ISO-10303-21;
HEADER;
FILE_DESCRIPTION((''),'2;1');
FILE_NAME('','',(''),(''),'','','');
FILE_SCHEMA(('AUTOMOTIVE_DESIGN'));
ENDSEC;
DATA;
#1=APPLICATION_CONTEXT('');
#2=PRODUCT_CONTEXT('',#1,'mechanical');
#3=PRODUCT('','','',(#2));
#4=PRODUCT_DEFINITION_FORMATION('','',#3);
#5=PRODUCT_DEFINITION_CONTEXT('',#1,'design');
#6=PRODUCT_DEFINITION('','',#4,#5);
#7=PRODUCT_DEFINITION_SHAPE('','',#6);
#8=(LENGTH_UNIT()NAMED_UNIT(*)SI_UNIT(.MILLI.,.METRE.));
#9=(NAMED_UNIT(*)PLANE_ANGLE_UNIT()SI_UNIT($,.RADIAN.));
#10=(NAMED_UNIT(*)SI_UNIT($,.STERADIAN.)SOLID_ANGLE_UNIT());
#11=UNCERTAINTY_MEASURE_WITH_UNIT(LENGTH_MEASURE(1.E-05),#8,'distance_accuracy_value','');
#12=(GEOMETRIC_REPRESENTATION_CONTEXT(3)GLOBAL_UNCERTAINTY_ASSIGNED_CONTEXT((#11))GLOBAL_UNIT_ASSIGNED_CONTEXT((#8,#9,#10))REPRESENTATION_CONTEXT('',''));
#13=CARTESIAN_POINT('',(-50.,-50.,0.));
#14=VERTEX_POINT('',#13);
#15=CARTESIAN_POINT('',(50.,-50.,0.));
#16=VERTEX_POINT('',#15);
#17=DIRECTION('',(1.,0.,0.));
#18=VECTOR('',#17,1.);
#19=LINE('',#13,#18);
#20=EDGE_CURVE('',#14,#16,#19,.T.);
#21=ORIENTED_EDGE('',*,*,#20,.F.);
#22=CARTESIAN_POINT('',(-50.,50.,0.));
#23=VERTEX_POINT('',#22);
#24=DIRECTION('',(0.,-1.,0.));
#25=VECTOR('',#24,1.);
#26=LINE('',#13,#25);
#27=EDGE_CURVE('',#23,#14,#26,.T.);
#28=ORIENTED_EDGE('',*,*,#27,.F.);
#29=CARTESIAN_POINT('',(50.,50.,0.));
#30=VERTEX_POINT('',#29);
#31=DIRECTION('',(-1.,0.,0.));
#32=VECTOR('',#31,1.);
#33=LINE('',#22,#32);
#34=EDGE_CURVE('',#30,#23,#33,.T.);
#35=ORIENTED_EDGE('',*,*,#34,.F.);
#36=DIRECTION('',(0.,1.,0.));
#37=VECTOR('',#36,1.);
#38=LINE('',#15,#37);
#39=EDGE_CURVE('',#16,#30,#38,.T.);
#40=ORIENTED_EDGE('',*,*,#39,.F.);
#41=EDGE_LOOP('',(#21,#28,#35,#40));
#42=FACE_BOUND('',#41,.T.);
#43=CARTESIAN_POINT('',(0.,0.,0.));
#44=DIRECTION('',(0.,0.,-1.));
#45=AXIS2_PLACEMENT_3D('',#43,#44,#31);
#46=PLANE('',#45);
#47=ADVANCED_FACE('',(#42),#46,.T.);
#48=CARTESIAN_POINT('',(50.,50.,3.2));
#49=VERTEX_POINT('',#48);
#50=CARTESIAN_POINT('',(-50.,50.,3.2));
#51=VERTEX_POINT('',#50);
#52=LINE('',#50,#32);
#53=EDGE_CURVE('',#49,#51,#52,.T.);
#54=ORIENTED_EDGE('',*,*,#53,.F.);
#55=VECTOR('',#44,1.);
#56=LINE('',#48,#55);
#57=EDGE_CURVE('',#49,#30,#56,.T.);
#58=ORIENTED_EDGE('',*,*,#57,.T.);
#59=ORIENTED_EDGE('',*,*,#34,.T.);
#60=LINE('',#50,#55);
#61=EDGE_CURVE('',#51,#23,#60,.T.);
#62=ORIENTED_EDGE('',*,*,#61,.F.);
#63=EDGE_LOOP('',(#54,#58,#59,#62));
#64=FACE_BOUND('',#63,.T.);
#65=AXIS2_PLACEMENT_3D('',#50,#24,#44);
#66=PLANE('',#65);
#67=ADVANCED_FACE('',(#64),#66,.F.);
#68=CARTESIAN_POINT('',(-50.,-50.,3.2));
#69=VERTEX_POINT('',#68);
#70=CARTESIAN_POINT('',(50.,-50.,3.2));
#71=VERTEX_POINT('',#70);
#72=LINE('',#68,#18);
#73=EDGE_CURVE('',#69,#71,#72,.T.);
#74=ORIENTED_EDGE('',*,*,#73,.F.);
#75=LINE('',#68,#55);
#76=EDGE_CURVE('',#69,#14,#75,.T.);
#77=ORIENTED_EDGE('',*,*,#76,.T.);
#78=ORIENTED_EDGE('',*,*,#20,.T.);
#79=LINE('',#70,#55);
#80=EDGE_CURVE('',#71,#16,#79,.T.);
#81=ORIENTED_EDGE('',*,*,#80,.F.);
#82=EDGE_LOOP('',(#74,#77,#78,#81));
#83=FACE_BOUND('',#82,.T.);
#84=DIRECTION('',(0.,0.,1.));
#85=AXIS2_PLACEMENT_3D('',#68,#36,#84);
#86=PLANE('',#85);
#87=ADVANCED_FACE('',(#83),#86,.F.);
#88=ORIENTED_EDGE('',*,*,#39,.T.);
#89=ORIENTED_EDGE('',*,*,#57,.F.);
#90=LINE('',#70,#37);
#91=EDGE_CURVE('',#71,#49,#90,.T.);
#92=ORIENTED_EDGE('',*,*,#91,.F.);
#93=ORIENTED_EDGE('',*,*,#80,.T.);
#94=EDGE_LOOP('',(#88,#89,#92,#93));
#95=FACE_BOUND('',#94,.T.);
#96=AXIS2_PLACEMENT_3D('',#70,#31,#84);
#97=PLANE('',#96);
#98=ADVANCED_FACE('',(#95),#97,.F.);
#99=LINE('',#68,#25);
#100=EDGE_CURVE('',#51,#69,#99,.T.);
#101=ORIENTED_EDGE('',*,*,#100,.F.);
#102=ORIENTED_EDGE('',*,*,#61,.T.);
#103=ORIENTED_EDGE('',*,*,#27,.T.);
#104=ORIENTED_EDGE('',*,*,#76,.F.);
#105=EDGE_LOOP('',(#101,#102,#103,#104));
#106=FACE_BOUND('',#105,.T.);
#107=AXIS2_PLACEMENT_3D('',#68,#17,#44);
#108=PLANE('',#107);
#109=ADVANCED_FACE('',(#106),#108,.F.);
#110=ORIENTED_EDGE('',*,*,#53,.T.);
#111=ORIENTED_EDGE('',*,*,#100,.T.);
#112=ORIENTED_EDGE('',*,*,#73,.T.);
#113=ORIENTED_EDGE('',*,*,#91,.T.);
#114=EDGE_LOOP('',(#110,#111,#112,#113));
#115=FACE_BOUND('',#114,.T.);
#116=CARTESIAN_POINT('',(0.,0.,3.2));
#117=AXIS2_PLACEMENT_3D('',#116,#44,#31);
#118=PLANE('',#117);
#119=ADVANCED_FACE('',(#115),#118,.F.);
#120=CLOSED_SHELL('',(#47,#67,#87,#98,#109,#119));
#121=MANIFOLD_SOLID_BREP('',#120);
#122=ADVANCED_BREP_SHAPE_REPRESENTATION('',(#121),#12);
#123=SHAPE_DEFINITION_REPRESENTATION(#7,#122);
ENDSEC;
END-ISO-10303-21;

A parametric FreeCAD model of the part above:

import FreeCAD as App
import Part
import Sketcher
from FreeCAD import Vector
Q = App.Units.Quantity


def add_polygon(sketch, points):
    """Adds a closed chain of lines whose ends are joined by coincident constraints."""
    first, n = sketch.GeometryCount, len(points)
    for a, b in zip(points, points[1:] + points[:1]):
        sketch.addGeometry(Part.LineSegment(App.Vector(*a, 0), App.Vector(*b, 0)), False)
    for i in range(n):
        sketch.addConstraint(Sketcher.Constraint("Coincident", first + i, 2, first + (i + 1) % n, 1))

doc = App.newDocument("Part")
params = doc.addObject("Spreadsheet::Sheet", "Params")
for row, (alias, value) in enumerate([
    ("sketch1_width", "100 mm"),
    ("pad1_length", "3.2 mm"),
], start=1):
    params.set(f"A{row}", alias)
    params.set(f"B{row}", "=" + value)
    params.setAlias(f"B{row}", alias)

body = doc.addObject("PartDesign::Body", "Body")

sketch1 = body.newObject("Sketcher::SketchObject", "Sketch")
sketch1.AttachmentSupport = (doc.getObject("XY_Plane"), [""])
sketch1.MapMode = "FlatFace"
add_polygon(sketch1, [(-50, 50), (-50, -50), (50, -50), (50, 50)])
sketch1.addConstraint(Sketcher.Constraint("Vertical", 0))
sketch1.addConstraint(Sketcher.Constraint("Horizontal", 1))
sketch1.addConstraint(Sketcher.Constraint("Vertical", 2))
sketch1.addConstraint(Sketcher.Constraint("Horizontal", 3))
sketch1.addConstraint(Sketcher.Constraint("Symmetric", 0, 2, 2, 2, -1, 1))
sketch1.addConstraint(Sketcher.Constraint("Equal", 3, 0))
sketch1.addConstraint(Sketcher.Constraint("DistanceX", 1, 1, 1, 2, Q("100 mm")))
sketch1.setExpression("Constraints[10]", "Params.sketch1_width")
pad1 = body.newObject("PartDesign::Pad", "Pad")
pad1.Profile = sketch1
pad1.setExpression("Length", "Params.pad1_length")

doc.recompute()
